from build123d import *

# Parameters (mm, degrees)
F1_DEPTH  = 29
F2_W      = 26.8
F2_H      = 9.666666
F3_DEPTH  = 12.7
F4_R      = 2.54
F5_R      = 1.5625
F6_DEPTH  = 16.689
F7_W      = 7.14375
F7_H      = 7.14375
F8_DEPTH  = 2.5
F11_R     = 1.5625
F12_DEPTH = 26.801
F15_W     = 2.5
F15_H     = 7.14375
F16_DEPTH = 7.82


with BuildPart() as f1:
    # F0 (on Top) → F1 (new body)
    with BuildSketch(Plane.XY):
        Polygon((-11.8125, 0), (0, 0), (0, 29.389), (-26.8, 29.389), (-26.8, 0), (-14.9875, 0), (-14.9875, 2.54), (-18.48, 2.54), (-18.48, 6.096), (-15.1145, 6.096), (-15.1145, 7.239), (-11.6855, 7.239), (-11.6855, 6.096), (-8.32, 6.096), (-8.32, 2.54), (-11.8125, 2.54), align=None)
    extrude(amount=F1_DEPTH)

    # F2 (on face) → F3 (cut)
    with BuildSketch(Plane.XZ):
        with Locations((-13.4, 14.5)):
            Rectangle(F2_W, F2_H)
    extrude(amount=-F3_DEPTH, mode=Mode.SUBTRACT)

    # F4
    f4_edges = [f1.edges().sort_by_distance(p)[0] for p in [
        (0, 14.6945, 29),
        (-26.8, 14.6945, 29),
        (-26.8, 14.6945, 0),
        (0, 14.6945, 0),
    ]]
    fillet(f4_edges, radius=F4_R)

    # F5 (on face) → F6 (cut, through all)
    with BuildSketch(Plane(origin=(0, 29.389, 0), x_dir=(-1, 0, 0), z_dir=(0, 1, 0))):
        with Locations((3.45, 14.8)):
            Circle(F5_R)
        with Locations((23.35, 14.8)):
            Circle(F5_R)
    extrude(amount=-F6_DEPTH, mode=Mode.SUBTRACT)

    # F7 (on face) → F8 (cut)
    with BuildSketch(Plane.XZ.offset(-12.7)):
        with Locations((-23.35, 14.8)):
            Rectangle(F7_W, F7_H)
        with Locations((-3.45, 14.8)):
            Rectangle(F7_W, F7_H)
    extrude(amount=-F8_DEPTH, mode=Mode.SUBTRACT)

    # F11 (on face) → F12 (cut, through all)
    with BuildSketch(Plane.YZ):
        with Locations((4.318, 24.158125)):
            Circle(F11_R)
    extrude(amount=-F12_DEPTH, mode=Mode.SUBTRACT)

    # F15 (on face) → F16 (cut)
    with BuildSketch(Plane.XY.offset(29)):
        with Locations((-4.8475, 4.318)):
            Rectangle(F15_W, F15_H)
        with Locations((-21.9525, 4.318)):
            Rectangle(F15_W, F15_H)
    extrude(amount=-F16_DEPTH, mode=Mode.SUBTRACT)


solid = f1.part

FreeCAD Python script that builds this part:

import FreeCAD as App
import Part
import Sketcher
from FreeCAD import Vector
Q = App.Units.Quantity


def edges_at(feature, points):
    """Names of the edges that pass closest to the given points."""
    edges = feature.Shape.Edges
    near = lambda p: min(range(len(edges)), key=lambda i: edges[i].distToShape(Part.Vertex(*p))[0])
    return sorted({f"Edge{near(p) + 1}" for p in points})

doc = App.newDocument("Part")
body = doc.addObject("PartDesign::Body", "Body")

# Sketch on XY plane
sketch1 = body.newObject("Sketcher::SketchObject", "Sketch")
sketch1.AttachmentSupport = (doc.getObject("XY_Plane"), [""])
sketch1.MapMode = "FlatFace"
sketch1.addGeometry(Part.LineSegment(Vector(-11.8, 0, 0), Vector(0, 0, 0)), False)
sketch1.addGeometry(Part.LineSegment(Vector(0, 0, 0), Vector(0, 29.4, 0)), False)
sketch1.addGeometry(Part.LineSegment(Vector(0, 29.4, 0), Vector(-26.8, 29.4, 0)), False)
sketch1.addGeometry(Part.LineSegment(Vector(-26.8, 29.4, 0), Vector(-26.8, 0, 0)), False)
sketch1.addGeometry(Part.LineSegment(Vector(-26.8, 0, 0), Vector(-15, 0, 0)), False)
sketch1.addGeometry(Part.LineSegment(Vector(-15, 0, 0), Vector(-15, 2.5, 0)), False)
sketch1.addGeometry(Part.LineSegment(Vector(-15, 2.5, 0), Vector(-18.5, 2.5, 0)), False)
sketch1.addGeometry(Part.LineSegment(Vector(-18.5, 2.5, 0), Vector(-18.5, 6.1, 0)), False)
sketch1.addGeometry(Part.LineSegment(Vector(-18.5, 6.1, 0), Vector(-15.1, 6.1, 0)), False)
sketch1.addGeometry(Part.LineSegment(Vector(-15.1, 6.1, 0), Vector(-15.1, 7.2, 0)), False)
sketch1.addGeometry(Part.LineSegment(Vector(-15.1, 7.2, 0), Vector(-11.7, 7.2, 0)), False)
sketch1.addGeometry(Part.LineSegment(Vector(-11.7, 7.2, 0), Vector(-11.7, 6.1, 0)), False)
sketch1.addGeometry(Part.LineSegment(Vector(-11.7, 6.1, 0), Vector(-8.3, 6.1, 0)), False)
sketch1.addGeometry(Part.LineSegment(Vector(-8.3, 6.1, 0), Vector(-8.3, 2.5, 0)), False)
sketch1.addGeometry(Part.LineSegment(Vector(-8.3, 2.5, 0), Vector(-11.8, 2.5, 0)), False)
sketch1.addGeometry(Part.LineSegment(Vector(-11.8, 2.5, 0), Vector(-11.8, 0, 0)), False)
sketch1.addConstraint(Sketcher.Constraint("Coincident", 0, 2, 1, 1))
sketch1.addConstraint(Sketcher.Constraint("Coincident", 1, 2, 2, 1))
sketch1.addConstraint(Sketcher.Constraint("Coincident", 2, 2, 3, 1))
sketch1.addConstraint(Sketcher.Constraint("Coincident", 3, 2, 4, 1))
sketch1.addConstraint(Sketcher.Constraint("Coincident", 4, 2, 5, 1))
sketch1.addConstraint(Sketcher.Constraint("Coincident", 5, 2, 6, 1))
sketch1.addConstraint(Sketcher.Constraint("Coincident", 6, 2, 7, 1))
sketch1.addConstraint(Sketcher.Constraint("Coincident", 7, 2, 8, 1))
sketch1.addConstraint(Sketcher.Constraint("Coincident", 8, 2, 9, 1))
sketch1.addConstraint(Sketcher.Constraint("Coincident", 9, 2, 10, 1))
sketch1.addConstraint(Sketcher.Constraint("Coincident", 10, 2, 11, 1))
sketch1.addConstraint(Sketcher.Constraint("Coincident", 11, 2, 12, 1))
sketch1.addConstraint(Sketcher.Constraint("Coincident", 12, 2, 13, 1))
sketch1.addConstraint(Sketcher.Constraint("Coincident", 13, 2, 14, 1))
sketch1.addConstraint(Sketcher.Constraint("Coincident", 14, 2, 15, 1))
sketch1.addConstraint(Sketcher.Constraint("Coincident", 15, 2, 0, 1))
sketch1.addConstraint(Sketcher.Constraint("Horizontal", 0))
sketch1.addConstraint(Sketcher.Constraint("Vertical", 1))
sketch1.addConstraint(Sketcher.Constraint("Horizontal", 2))
sketch1.addConstraint(Sketcher.Constraint("Vertical", 3))
sketch1.addConstraint(Sketcher.Constraint("Horizontal", 4))
sketch1.addConstraint(Sketcher.Constraint("Vertical", 5))
sketch1.addConstraint(Sketcher.Constraint("Horizontal", 6))
sketch1.addConstraint(Sketcher.Constraint("Vertical", 7))
sketch1.addConstraint(Sketcher.Constraint("Horizontal", 8))
sketch1.addConstraint(Sketcher.Constraint("Vertical", 9))
sketch1.addConstraint(Sketcher.Constraint("Horizontal", 10))
sketch1.addConstraint(Sketcher.Constraint("Vertical", 11))
sketch1.addConstraint(Sketcher.Constraint("Horizontal", 12))
sketch1.addConstraint(Sketcher.Constraint("Vertical", 13))
sketch1.addConstraint(Sketcher.Constraint("Horizontal", 14))
sketch1.addConstraint(Sketcher.Constraint("Vertical", 15))
sketch1.addConstraint(Sketcher.Constraint("Coincident", 0, 2, -1, 1))
sketch1.addConstraint(Sketcher.Constraint("PointOnObject", 3, 2, -1))
sketch1.addConstraint(Sketcher.Constraint("Horizontal", 8, 2, 11, 2))
sketch1.addConstraint(Sketcher.Constraint("Horizontal", 6, 2, 13, 2))
sketch1.addConstraint(Sketcher.Constraint("Equal", 0, 4))
sketch1.addConstraint(Sketcher.Constraint("Equal", 8, 12))
sketch1.addConstraint(Sketcher.Constraint("Equal", 6, 14))
sketch1.addConstraint(Sketcher.Constraint("DistanceY", 5, 1, 5, 2, Q("0.1 in")))
sketch1.addConstraint(Sketcher.Constraint("DistanceY", 7, 1, 7, 2, Q("0.14 in")))
sketch1.addConstraint(Sketcher.Constraint("DistanceX", 10, 1, 10, 2, Q("0.135 in")))
sketch1.addConstraint(Sketcher.Constraint("DistanceY", 9, 1, 9, 2, Q("0.045 in")))
sketch1.addConstraint(Sketcher.Constraint("DistanceX", 5, 2, 10, 2, Q("0.13 in")))
sketch1.addConstraint(Sketcher.Constraint("DistanceX", 6, 2, 6, 1, Q("0.1375 in")))
sketch1.addConstraint(Sketcher.Constraint("DistanceX", 0, 1, 0, 2, Q("11.8125 mm")))
sketch1.addConstraint(Sketcher.Constraint("DistanceY", 1, 1, 1, 2, Q("29.389 mm")))
pad1 = body.newObject("PartDesign::Pad", "Pad")
pad1.Profile = sketch1
pad1.Length = 29

# Sketch on XZ plane
sketch2 = body.newObject("Sketcher::SketchObject", "Sketch001")
sketch2.AttachmentSupport = (doc.getObject("XZ_Plane"), [""])
sketch2.MapMode = "FlatFace"
sketch2.addGeometry(Part.LineSegment(Vector(-27, 19, 0), Vector(-27, 10, 0)), False)
sketch2.addGeometry(Part.LineSegment(Vector(-27, 10, 0), Vector(0, 10, 0)), False)
sketch2.addGeometry(Part.LineSegment(Vector(0, 10, 0), Vector(0, 19, 0)), False)
sketch2.addGeometry(Part.LineSegment(Vector(0, 19, 0), Vector(-27, 19, 0)), False)
sketch2.addConstraint(Sketcher.Constraint("Coincident", 0, 2, 1, 1))
sketch2.addConstraint(Sketcher.Constraint("Coincident", 1, 2, 2, 1))
sketch2.addConstraint(Sketcher.Constraint("Coincident", 2, 2, 3, 1))
sketch2.addConstraint(Sketcher.Constraint("Coincident", 3, 2, 0, 1))
sketch2.addConstraint(Sketcher.Constraint("Vertical", 0))
sketch2.addConstraint(Sketcher.Constraint("Horizontal", 1))
sketch2.addConstraint(Sketcher.Constraint("Vertical", 2))
sketch2.addConstraint(Sketcher.Constraint("Horizontal", 3))
sketch2.addConstraint(Sketcher.Constraint("PointOnObject", 1, 2, -2))
sketch2.addConstraint(Sketcher.Constraint("DistanceX", 1, 1, 1, 2, Q("26.8 mm")))
sketch2.addConstraint(Sketcher.Constraint("DistanceY", 0, 2, 0, 1, Q("9.666666 mm")))
sketch2.addConstraint(Sketcher.Constraint("DistanceY", -1, 1, 0, 2, Q("9.666667 mm")))
pocket1 = body.newObject("PartDesign::Pocket", "Pocket")
pocket1.Profile = sketch2
pocket1.Length = Q("0.5 in")
doc.recompute()

fillet = body.newObject("PartDesign::Fillet", "Fillet")
fillet.Base = (pocket1, edges_at(pocket1, [
    (0, 14.694, 29),
    (-26.8, 14.694, 29),
    (-26.8, 14.694, 0),
    (0, 14.694, 0),
]))
fillet.Radius = Q("0.1 in")

# Sketch on XZ plane
sketch3 = body.newObject("Sketcher::SketchObject", "Sketch002")
sketch3.AttachmentSupport = (doc.getObject("XZ_Plane"), [""])
sketch3.MapMode = "FlatFace"
sketch3.AttachmentOffset = App.Placement(Vector(0, 0, -29.389), App.Rotation())
sketch3.addGeometry(Part.Circle(Vector(-3.5, 14.8, 0), Vector(0, 0, 1), 1.6), False)
sketch3.addGeometry(Part.Circle(Vector(-23.4, 14.8, 0), Vector(0, 0, 1), 1.6), False)
sketch3.addConstraint(Sketcher.Constraint("Equal", 0, 1))
sketch3.addConstraint(Sketcher.Constraint("Horizontal", 0, 3, 1, 3))
sketch3.addConstraint(Sketcher.Constraint("Diameter", 0, Q("3.125 mm")))
sketch3.addConstraint(Sketcher.Constraint("DistanceX", 0, 3, -1, 1, Q("3.45 mm")))
sketch3.addConstraint(Sketcher.Constraint("DistanceY", -1, 1, 0, 3, Q("14.8 mm")))
sketch3.addConstraint(Sketcher.Constraint("DistanceX", 1, 3, -1, 1, Q("23.35 mm")))
pocket2 = body.newObject("PartDesign::Pocket", "Pocket001")
pocket2.Profile = sketch3
pocket2.Type = "ThroughAll"
pocket2.Reversed = True

# Sketch on XZ plane
sketch4 = body.newObject("Sketcher::SketchObject", "Sketch003")
sketch4.AttachmentSupport = (doc.getObject("XZ_Plane"), [""])
sketch4.MapMode = "FlatFace"
sketch4.AttachmentOffset = App.Placement(Vector(0, 0, -0.5 * 25.4), App.Rotation())
sketch4.addGeometry(Part.LineSegment(Vector(-27, 18, 0), Vector(-27, 11, 0)), False)
sketch4.addGeometry(Part.LineSegment(Vector(-27, 11, 0), Vector(-20, 11, 0)), False)
sketch4.addGeometry(Part.LineSegment(Vector(-20, 11, 0), Vector(-20, 18, 0)), False)
sketch4.addGeometry(Part.LineSegment(Vector(-20, 18, 0), Vector(-27, 18, 0)), False)
sketch4.addGeometry(Part.LineSegment(Vector(-7, 18, 0), Vector(-7, 11, 0)), False)
sketch4.addGeometry(Part.LineSegment(Vector(-7, 11, 0), Vector(0, 11, 0)), False)
sketch4.addGeometry(Part.LineSegment(Vector(0, 11, 0), Vector(0, 18, 0)), False)
sketch4.addGeometry(Part.LineSegment(Vector(0, 18, 0), Vector(-7, 18, 0)), False)
sketch4.addConstraint(Sketcher.Constraint("Coincident", 0, 2, 1, 1))
sketch4.addConstraint(Sketcher.Constraint("Coincident", 1, 2, 2, 1))
sketch4.addConstraint(Sketcher.Constraint("Coincident", 2, 2, 3, 1))
sketch4.addConstraint(Sketcher.Constraint("Coincident", 3, 2, 0, 1))
sketch4.addConstraint(Sketcher.Constraint("Coincident", 4, 2, 5, 1))
sketch4.addConstraint(Sketcher.Constraint("Coincident", 5, 2, 6, 1))
sketch4.addConstraint(Sketcher.Constraint("Coincident", 6, 2, 7, 1))
sketch4.addConstraint(Sketcher.Constraint("Coincident", 7, 2, 4, 1))
sketch4.addConstraint(Sketcher.Constraint("Vertical", 0))
sketch4.addConstraint(Sketcher.Constraint("Horizontal", 1))
sketch4.addConstraint(Sketcher.Constraint("Vertical", 2))
sketch4.addConstraint(Sketcher.Constraint("Horizontal", 3))
sketch4.addConstraint(Sketcher.Constraint("Vertical", 4))
sketch4.addConstraint(Sketcher.Constraint("Horizontal", 5))
sketch4.addConstraint(Sketcher.Constraint("Vertical", 6))
sketch4.addConstraint(Sketcher.Constraint("Horizontal", 7))
sketch4.addConstraint(Sketcher.Constraint("Horizontal", 1, 2, 4, 2))
sketch4.addConstraint(Sketcher.Constraint("Horizontal", 3, 2, 6, 2))
sketch4.addConstraint(Sketcher.Constraint("Equal", 3, 5))
sketch4.addConstraint(Sketcher.Constraint("Equal", 7, 0))
sketch4.addConstraint(Sketcher.Constraint("DistanceX", 1, 1, 1, 2, Q("0.28125 in")))
sketch4.addConstraint(Sketcher.Constraint("DistanceX", 0, 2, 4, 2, Q("19.9 mm")))
sketch4.addConstraint(Sketcher.Constraint("DistanceX", 0, 2, -1, 1, Q("26.921875 mm")))
sketch4.addConstraint(Sketcher.Constraint("DistanceY", -1, 1, 0, 2, Q("11.228125 mm")))
pocket3 = body.newObject("PartDesign::Pocket", "Pocket002")
pocket3.Profile = sketch4
pocket3.Length = 2.5

# Sketch on YZ plane
sketch5 = body.newObject("Sketcher::SketchObject", "Sketch004")
sketch5.AttachmentSupport = (doc.getObject("YZ_Plane"), [""])
sketch5.MapMode = "FlatFace"
sketch5.addGeometry(Part.Circle(Vector(4.3, 24.2, 0), Vector(0, 0, 1), 1.6), False)
sketch5.addConstraint(Sketcher.Constraint("Diameter", 0, Q("3.125 mm")))
sketch5.addConstraint(Sketcher.Constraint("DistanceX", -1, 1, 0, 3, Q("0.17 in")))
sketch5.addConstraint(Sketcher.Constraint("DistanceY", -1, 1, 0, 3, Q("24.158125 mm")))
pocket4 = body.newObject("PartDesign::Pocket", "Pocket003")
pocket4.Profile = sketch5
pocket4.Type = "ThroughAll"

# Sketch on XY plane
sketch6 = body.newObject("Sketcher::SketchObject", "Sketch005")
sketch6.AttachmentSupport = (doc.getObject("XY_Plane"), [""])
sketch6.MapMode = "FlatFace"
sketch6.AttachmentOffset = App.Placement(Vector(0, 0, 29), App.Rotation())
sketch6.addGeometry(Part.LineSegment(Vector(-6.1, 7.9, 0), Vector(-6.1, 0.7, 0)), False)
sketch6.addGeometry(Part.LineSegment(Vector(-6.1, 0.7, 0), Vector(-3.6, 0.7, 0)), False)
sketch6.addGeometry(Part.LineSegment(Vector(-3.6, 0.7, 0), Vector(-3.6, 7.9, 0)), False)
sketch6.addGeometry(Part.LineSegment(Vector(-3.6, 7.9, 0), Vector(-6.1, 7.9, 0)), False)
sketch6.addGeometry(Part.LineSegment(Vector(-23.2, 7.9, 0), Vector(-23.2, 0.7, 0)), False)
sketch6.addGeometry(Part.LineSegment(Vector(-23.2, 0.7, 0), Vector(-20.7, 0.7, 0)), False)
sketch6.addGeometry(Part.LineSegment(Vector(-20.7, 0.7, 0), Vector(-20.7, 7.9, 0)), False)
sketch6.addGeometry(Part.LineSegment(Vector(-20.7, 7.9, 0), Vector(-23.2, 7.9, 0)), False)
sketch6.addConstraint(Sketcher.Constraint("Coincident", 0, 2, 1, 1))
sketch6.addConstraint(Sketcher.Constraint("Coincident", 1, 2, 2, 1))
sketch6.addConstraint(Sketcher.Constraint("Coincident", 2, 2, 3, 1))
sketch6.addConstraint(Sketcher.Constraint("Coincident", 3, 2, 0, 1))
sketch6.addConstraint(Sketcher.Constraint("Coincident", 4, 2, 5, 1))
sketch6.addConstraint(Sketcher.Constraint("Coincident", 5, 2, 6, 1))
sketch6.addConstraint(Sketcher.Constraint("Coincident", 6, 2, 7, 1))
sketch6.addConstraint(Sketcher.Constraint("Coincident", 7, 2, 4, 1))
sketch6.addConstraint(Sketcher.Constraint("Vertical", 0))
sketch6.addConstraint(Sketcher.Constraint("Horizontal", 1))
sketch6.addConstraint(Sketcher.Constraint("Vertical", 2))
sketch6.addConstraint(Sketcher.Constraint("Horizontal", 3))
sketch6.addConstraint(Sketcher.Constraint("Vertical", 4))
sketch6.addConstraint(Sketcher.Constraint("Horizontal", 5))
sketch6.addConstraint(Sketcher.Constraint("Vertical", 6))
sketch6.addConstraint(Sketcher.Constraint("Horizontal", 7))
sketch6.addConstraint(Sketcher.Constraint("Horizontal", 1, 2, 4, 2))
sketch6.addConstraint(Sketcher.Constraint("Horizontal", 3, 2, 6, 2))
sketch6.addConstraint(Sketcher.Constraint("Equal", 3, 5))
sketch6.addConstraint(Sketcher.Constraint("DistanceY", 0, 2, 0, 1, Q("0.28125 in")))
sketch6.addConstraint(Sketcher.Constraint("DistanceX", 5, 2, 0, 2, Q("0.575 in")))
sketch6.addConstraint(Sketcher.Constraint("DistanceX", 1, 1, 1, 2, Q("2.5 mm")))
sketch6.addConstraint(Sketcher.Constraint("DistanceX", 0, 2, -1, 1, Q("6.0975 mm")))
sketch6.addConstraint(Sketcher.Constraint("DistanceY", -1, 1, 0, 2, Q("0.746125 mm")))
pocket5 = body.newObject("PartDesign::Pocket", "Pocket004")
pocket5.Profile = sketch6
pocket5.Length = 7.82

doc.recompute()
